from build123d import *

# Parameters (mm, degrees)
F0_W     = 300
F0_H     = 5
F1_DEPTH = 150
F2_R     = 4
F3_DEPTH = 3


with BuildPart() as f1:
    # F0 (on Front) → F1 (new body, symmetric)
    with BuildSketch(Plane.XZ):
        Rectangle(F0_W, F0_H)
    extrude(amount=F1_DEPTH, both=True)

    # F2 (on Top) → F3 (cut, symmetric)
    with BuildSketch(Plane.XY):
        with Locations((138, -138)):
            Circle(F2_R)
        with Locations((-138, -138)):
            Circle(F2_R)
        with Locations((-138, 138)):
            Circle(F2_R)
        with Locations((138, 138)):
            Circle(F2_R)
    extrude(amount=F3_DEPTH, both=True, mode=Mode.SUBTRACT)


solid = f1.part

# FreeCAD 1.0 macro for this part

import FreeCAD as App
import Part
import Sketcher
Q = App.Units.Quantity


def add_polygon(sketch, points):
    """Adds a closed chain of lines whose ends are joined by coincident constraints."""
    first, n = sketch.GeometryCount, len(points)
    for a, b in zip(points, points[1:] + points[:1]):
        sketch.addGeometry(Part.LineSegment(App.Vector(*a, 0), App.Vector(*b, 0)), False)
    for i in range(n):
        sketch.addConstraint(Sketcher.Constraint("Coincident", first + i, 2, first + (i + 1) % n, 1))

doc = App.newDocument("Part")
body = doc.addObject("PartDesign::Body", "Body")

sketch1 = body.newObject("Sketcher::SketchObject", "Sketch")
sketch1.AttachmentSupport = (doc.getObject("XZ_Plane"), [""])
sketch1.MapMode = "FlatFace"
add_polygon(sketch1, [(-150, 2), (-150, -2), (150, -2), (150, 2)])
sketch1.addConstraint(Sketcher.Constraint("Vertical", 0))
sketch1.addConstraint(Sketcher.Constraint("Horizontal", 1))
sketch1.addConstraint(Sketcher.Constraint("Vertical", 2))
sketch1.addConstraint(Sketcher.Constraint("Horizontal", 3))
sketch1.addConstraint(Sketcher.Constraint("Symmetric", 0, 2, 2, 2, -1, 1))
sketch1.addConstraint(Sketcher.Constraint("DistanceX", 1, 1, 1, 2, Q("300 mm")))
sketch1.addConstraint(Sketcher.Constraint("DistanceY", 0, 2, 0, 1, Q("5 mm")))
pad1 = body.newObject("PartDesign::Pad", "Pad")
pad1.Profile = sketch1
pad1.Length = 300
pad1.Midplane = True

sketch2 = body.newObject("Sketcher::SketchObject", "Sketch001")
sketch2.AttachmentSupport = (doc.getObject("XY_Plane"), [""])
sketch2.MapMode = "FlatFace"
sketch2.addGeometry(Part.Circle(App.Vector(138, -138, 0), App.Vector(0, 0, 1), 4), False)
sketch2.addGeometry(Part.Circle(App.Vector(-138, -138, 0), App.Vector(0, 0, 1), 4), False)
sketch2.addGeometry(Part.Circle(App.Vector(-138, 138, 0), App.Vector(0, 0, 1), 4), False)
sketch2.addGeometry(Part.Circle(App.Vector(138, 138, 0), App.Vector(0, 0, 1), 4), False)
sketch2.addConstraint(Sketcher.Constraint("Equal", 0, 1))
sketch2.addConstraint(Sketcher.Constraint("Equal", 1, 2))
sketch2.addConstraint(Sketcher.Constraint("Equal", 2, 3))
sketch2.addConstraint(Sketcher.Constraint("Symmetric", 0, 3, 2, 3, -1, 1))
sketch2.addConstraint(Sketcher.Constraint("Symmetric", 1, 3, 3, 3, -1, 1))
sketch2.addConstraint(Sketcher.Constraint("Symmetric", 0, 3, 1, 3, -2))
sketch2.addConstraint(Sketcher.Constraint("Diameter", 0, Q("8 mm")))
sketch2.addConstraint(Sketcher.Constraint("DistanceX", -1, 1, 0, 3, Q("138 mm")))
sketch2.addConstraint(Sketcher.Constraint("DistanceY", 0, 3, -1, 1, Q("138 mm")))
pocket1 = body.newObject("PartDesign::Pocket", "Pocket")
pocket1.Profile = sketch2
pocket1.Length = 6
pocket1.Midplane = True

doc.recompute()
